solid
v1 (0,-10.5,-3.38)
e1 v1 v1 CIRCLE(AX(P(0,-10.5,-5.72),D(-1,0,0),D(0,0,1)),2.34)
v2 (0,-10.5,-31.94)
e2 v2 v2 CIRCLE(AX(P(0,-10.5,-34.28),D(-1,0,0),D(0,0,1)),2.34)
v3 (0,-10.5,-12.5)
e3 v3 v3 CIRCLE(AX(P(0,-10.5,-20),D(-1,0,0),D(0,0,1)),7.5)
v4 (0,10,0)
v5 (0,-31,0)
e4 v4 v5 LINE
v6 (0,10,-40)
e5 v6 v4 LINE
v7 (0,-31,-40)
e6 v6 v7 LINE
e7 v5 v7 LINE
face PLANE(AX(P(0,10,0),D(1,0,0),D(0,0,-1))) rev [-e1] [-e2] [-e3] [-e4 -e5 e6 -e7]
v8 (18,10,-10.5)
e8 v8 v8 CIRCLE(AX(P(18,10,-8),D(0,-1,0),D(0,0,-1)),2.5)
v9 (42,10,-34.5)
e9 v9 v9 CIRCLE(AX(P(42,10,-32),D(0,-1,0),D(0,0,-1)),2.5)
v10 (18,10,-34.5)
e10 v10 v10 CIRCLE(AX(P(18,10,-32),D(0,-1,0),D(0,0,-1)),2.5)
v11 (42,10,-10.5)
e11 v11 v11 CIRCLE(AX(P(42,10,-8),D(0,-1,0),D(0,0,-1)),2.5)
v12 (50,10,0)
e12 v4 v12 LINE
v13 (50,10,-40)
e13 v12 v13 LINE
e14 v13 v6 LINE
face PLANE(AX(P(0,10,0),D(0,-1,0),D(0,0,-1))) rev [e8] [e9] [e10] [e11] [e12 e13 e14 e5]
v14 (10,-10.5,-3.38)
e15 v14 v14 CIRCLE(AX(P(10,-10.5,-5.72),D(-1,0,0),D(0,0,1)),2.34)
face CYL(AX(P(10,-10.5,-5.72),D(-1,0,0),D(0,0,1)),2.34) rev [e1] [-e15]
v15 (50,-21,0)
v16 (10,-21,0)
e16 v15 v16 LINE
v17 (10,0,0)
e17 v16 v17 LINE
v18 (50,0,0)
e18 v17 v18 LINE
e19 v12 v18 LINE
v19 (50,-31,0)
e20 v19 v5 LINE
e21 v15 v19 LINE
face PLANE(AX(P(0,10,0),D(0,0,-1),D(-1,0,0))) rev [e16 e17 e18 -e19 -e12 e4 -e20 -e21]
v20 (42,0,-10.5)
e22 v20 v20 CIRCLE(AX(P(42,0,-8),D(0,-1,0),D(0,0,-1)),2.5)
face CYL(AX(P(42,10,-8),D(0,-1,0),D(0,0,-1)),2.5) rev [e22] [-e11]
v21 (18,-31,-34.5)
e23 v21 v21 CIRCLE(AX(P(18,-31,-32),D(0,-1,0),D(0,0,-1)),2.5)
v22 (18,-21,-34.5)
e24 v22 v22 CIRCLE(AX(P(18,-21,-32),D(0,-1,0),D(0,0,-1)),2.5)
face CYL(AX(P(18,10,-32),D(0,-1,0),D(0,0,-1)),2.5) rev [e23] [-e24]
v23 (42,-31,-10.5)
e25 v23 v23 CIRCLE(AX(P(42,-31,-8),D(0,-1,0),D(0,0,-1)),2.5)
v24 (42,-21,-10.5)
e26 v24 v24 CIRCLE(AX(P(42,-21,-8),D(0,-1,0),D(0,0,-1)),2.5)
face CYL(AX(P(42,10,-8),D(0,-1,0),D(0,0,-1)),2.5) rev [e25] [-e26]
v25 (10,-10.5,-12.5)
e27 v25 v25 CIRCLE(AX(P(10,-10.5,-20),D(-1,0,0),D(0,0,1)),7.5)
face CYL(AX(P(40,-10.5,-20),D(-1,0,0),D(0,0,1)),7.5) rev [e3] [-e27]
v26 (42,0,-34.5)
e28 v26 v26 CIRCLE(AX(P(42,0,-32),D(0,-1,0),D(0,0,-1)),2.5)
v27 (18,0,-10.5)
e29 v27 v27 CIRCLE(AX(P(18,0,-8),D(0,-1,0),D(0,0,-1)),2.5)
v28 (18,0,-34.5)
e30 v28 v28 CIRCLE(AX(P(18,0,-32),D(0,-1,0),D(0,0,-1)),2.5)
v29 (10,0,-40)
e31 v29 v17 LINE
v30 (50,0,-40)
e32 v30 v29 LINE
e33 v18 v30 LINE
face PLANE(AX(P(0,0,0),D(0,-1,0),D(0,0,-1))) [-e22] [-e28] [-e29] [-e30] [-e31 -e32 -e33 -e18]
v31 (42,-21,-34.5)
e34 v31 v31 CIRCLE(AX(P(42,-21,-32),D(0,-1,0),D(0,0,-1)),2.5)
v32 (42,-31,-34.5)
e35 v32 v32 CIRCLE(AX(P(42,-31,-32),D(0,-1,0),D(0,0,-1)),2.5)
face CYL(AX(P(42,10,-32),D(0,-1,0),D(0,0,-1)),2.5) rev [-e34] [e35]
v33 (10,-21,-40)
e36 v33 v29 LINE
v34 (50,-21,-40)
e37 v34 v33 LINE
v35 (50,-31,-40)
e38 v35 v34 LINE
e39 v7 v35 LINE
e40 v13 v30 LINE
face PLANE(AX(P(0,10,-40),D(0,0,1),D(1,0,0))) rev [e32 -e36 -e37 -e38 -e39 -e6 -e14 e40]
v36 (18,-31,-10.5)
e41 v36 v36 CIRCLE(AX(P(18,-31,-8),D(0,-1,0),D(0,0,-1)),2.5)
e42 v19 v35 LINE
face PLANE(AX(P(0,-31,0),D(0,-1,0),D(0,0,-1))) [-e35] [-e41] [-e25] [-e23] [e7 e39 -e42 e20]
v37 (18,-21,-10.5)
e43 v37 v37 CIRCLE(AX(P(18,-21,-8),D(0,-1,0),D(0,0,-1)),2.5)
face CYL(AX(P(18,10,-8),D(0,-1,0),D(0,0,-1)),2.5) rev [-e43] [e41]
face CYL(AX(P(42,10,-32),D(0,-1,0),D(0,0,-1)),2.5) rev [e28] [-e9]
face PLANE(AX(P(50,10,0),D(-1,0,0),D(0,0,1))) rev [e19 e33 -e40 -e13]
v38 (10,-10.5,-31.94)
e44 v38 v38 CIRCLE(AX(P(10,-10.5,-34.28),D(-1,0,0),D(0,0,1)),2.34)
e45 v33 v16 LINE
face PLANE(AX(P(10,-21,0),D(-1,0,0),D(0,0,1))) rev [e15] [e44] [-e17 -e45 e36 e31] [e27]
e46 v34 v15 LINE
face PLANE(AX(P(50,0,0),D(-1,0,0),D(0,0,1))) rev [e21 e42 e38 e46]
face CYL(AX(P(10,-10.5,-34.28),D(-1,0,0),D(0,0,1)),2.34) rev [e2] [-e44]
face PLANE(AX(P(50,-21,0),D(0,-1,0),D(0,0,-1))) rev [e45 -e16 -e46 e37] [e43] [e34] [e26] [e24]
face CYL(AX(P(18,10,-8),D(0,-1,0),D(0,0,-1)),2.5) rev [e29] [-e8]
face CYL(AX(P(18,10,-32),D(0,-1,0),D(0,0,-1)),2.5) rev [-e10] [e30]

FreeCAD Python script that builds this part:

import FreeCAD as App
import Part
import Sketcher
from FreeCAD import Vector
Q = App.Units.Quantity

doc = App.newDocument("Part")
body = doc.addObject("PartDesign::Body", "Body")

# Sketch on XZ plane
sketch1 = body.newObject("Sketcher::SketchObject", "Sketch")
sketch1.AttachmentSupport = (doc.getObject("XZ_Plane"), [""])
sketch1.MapMode = "FlatFace"
sketch1.addGeometry([
    Part.LineSegment(Vector(0, -40, 0), Vector(0, 0, 0)),
    Part.LineSegment(Vector(0, 0, 0), Vector(50, 0, 0)),
    Part.LineSegment(Vector(50, 0, 0), Vector(50, -40, 0)),
    Part.LineSegment(Vector(50, -40, 0), Vector(0, -40, 0)),
], False)
sketch1.addConstraint([
    Sketcher.Constraint("Coincident", 0, 2, 1, 1),
    Sketcher.Constraint("Coincident", 1, 2, 2, 1),
    Sketcher.Constraint("Coincident", 2, 2, 3, 1),
    Sketcher.Constraint("Coincident", 3, 2, 0, 1),
    Sketcher.Constraint("Vertical", 0),
    Sketcher.Constraint("Horizontal", 1),
    Sketcher.Constraint("Vertical", 2),
    Sketcher.Constraint("Horizontal", 3),
    Sketcher.Constraint("Coincident", 0, 2, -1, 1),
    Sketcher.Constraint("DistanceX", 1, 1, 1, 2, Q("50 mm")),
    Sketcher.Constraint("DistanceY", 0, 1, 0, 2, Q("40 mm")),
])
pad1 = body.newObject("PartDesign::Pad", "Pad")
pad1.Profile = sketch1
pad1.Length = 10
pad1.Reversed = True

# Sketch on XZ plane
sketch2 = body.newObject("Sketcher::SketchObject", "Sketch001")
sketch2.AttachmentSupport = (doc.getObject("XZ_Plane"), [""])
sketch2.MapMode = "FlatFace"
sketch2.addGeometry([
    Part.LineSegment(Vector(0, 0, 0), Vector(0, -40, 0)),
    Part.LineSegment(Vector(0, -40, 0), Vector(10, -40, 0)),
    Part.LineSegment(Vector(10, -40, 0), Vector(10, 0, 0)),
    Part.LineSegment(Vector(10, 0, 0), Vector(0, 0, 0)),
], False)
sketch2.addConstraint([
    Sketcher.Constraint("Coincident", 0, 2, 1, 1),
    Sketcher.Constraint("Coincident", 1, 2, 2, 1),
    Sketcher.Constraint("Coincident", 2, 2, 3, 1),
    Sketcher.Constraint("Coincident", 3, 2, 0, 1),
    Sketcher.Constraint("Vertical", 0),
    Sketcher.Constraint("Horizontal", 1),
    Sketcher.Constraint("Vertical", 2),
    Sketcher.Constraint("Horizontal", 3),
    Sketcher.Constraint("Coincident", 3, 2, -1, 1),
    Sketcher.Constraint("DistanceX", 1, 1, 1, 2, Q("10 mm")),
    Sketcher.Constraint("DistanceY", 0, 2, 0, 1, Q("40 mm")),
])
pad2 = body.newObject("PartDesign::Pad", "Pad001")
pad2.Profile = sketch2
pad2.Length = 21

# Sketch on XZ plane
sketch3 = body.newObject("Sketcher::SketchObject", "Sketch002")
sketch3.AttachmentSupport = (doc.getObject("XZ_Plane"), [""])
sketch3.MapMode = "FlatFace"
sketch3.AttachmentOffset = App.Placement(Vector(0, 0, 21), App.Rotation())
sketch3.addGeometry([
    Part.LineSegment(Vector(0, 0, 0), Vector(0, -40, 0)),
    Part.LineSegment(Vector(0, -40, 0), Vector(10, -40, 0)),
    Part.LineSegment(Vector(10, -40, 0), Vector(10, 0, 0)),
    Part.LineSegment(Vector(10, 0, 0), Vector(0, 0, 0)),
], False)
sketch3.addConstraint([
    Sketcher.Constraint("Coincident", 0, 2, 1, 1),
    Sketcher.Constraint("Coincident", 1, 2, 2, 1),
    Sketcher.Constraint("Coincident", 2, 2, 3, 1),
    Sketcher.Constraint("Coincident", 3, 2, 0, 1),
    Sketcher.Constraint("Vertical", 0),
    Sketcher.Constraint("Horizontal", 1),
    Sketcher.Constraint("Vertical", 2),
    Sketcher.Constraint("Horizontal", 3),
    Sketcher.Constraint("Coincident", 3, 2, -1, 1),
    Sketcher.Constraint("DistanceX", 1, 1, 1, 2, Q("10 mm")),
    Sketcher.Constraint("DistanceY", 0, 2, 0, 1, Q("40 mm")),
])
pad3 = body.newObject("PartDesign::Pad", "Pad002")
pad3.Profile = sketch3
pad3.Length = 10

# Sketch on YZ plane
sketch4 = body.newObject("Sketcher::SketchObject", "Sketch003")
sketch4.AttachmentSupport = (doc.getObject("YZ_Plane"), [""])
sketch4.MapMode = "FlatFace"
sketch4.AttachmentOffset = App.Placement(Vector(0, 0, 10), App.Rotation())
sketch4.addGeometry([
    Part.LineSegment(Vector(-21, 0, 0), Vector(-31, 0, 0)),
    Part.LineSegment(Vector(-31, 0, 0), Vector(-31, -40, 0)),
    Part.LineSegment(Vector(-31, -40, 0), Vector(-21, -40, 0)),
    Part.LineSegment(Vector(-21, -40, 0), Vector(-21, 0, 0)),
], False)
sketch4.addConstraint([
    Sketcher.Constraint("Coincident", 0, 2, 1, 1),
    Sketcher.Constraint("Coincident", 1, 2, 2, 1),
    Sketcher.Constraint("Coincident", 2, 2, 3, 1),
    Sketcher.Constraint("Coincident", 3, 2, 0, 1),
    Sketcher.Constraint("Horizontal", 0),
    Sketcher.Constraint("Vertical", 1),
    Sketcher.Constraint("Horizontal", 2),
    Sketcher.Constraint("Vertical", 3),
    Sketcher.Constraint("PointOnObject", 0, 2, -1),
    Sketcher.Constraint("DistanceX", 0, 2, 0, 1, Q("10 mm")),
    Sketcher.Constraint("DistanceY", 1, 2, 1, 1, Q("40 mm")),
    Sketcher.Constraint("DistanceX", 0, 2, -1, 1, Q("31 mm")),
])
pad4 = body.newObject("PartDesign::Pad", "Pad003")
pad4.Profile = sketch4
pad4.Length = 40

# Sketch on YZ plane
sketch5 = body.newObject("Sketcher::SketchObject", "Sketch004")
sketch5.AttachmentSupport = (doc.getObject("YZ_Plane"), [""])
sketch5.MapMode = "FlatFace"
sketch5.addGeometry([
    Part.Circle(Vector(-10.5, -20, 0), Vector(0, 0, 1), 7.5),
    Part.Circle(Vector(-10.5, -34.3, 0), Vector(0, 0, 1), 2.5),
    Part.Circle(Vector(-10.5, -5.7, 0), Vector(0, 0, 1), 2.5),
], False)
sketch5.addConstraint([
    Sketcher.Constraint("Equal", 1, 2),
    Sketcher.Constraint("Vertical", 0, 3, 1, 3),
    Sketcher.Constraint("Vertical", 1, 3, 2, 3),
    Sketcher.Constraint("Diameter", 0, Q("15 mm")),
    Sketcher.Constraint("Diameter", 1, Q("5 mm")),
    Sketcher.Constraint("DistanceY", 0, 3, -1, 1, Q("20 mm")),
    Sketcher.Constraint("DistanceX", 0, 3, -1, 1, Q("10.5 mm")),
    Sketcher.Constraint("DistanceY", 1, 3, -1, 1, Q("34.28 mm")),
    Sketcher.Constraint("DistanceY", 2, 3, -1, 1, Q("5.72 mm")),
])
pocket1 = body.newObject("PartDesign::Pocket", "Pocket")
pocket1.Profile = sketch5
pocket1.Length = 40
pocket1.Reversed = True

# Sketch on XZ plane
sketch6 = body.newObject("Sketcher::SketchObject", "Sketch005")
sketch6.AttachmentSupport = (doc.getObject("XZ_Plane"), [""])
sketch6.MapMode = "FlatFace"
sketch6.AttachmentOffset = App.Placement(Vector(0, 0, 31), App.Rotation())
sketch6.addGeometry([
    Part.Circle(Vector(18, -8, 0), Vector(0, 0, 1), 2.5),
    Part.Circle(Vector(42, -8, 0), Vector(0, 0, 1), 2.5),
    Part.Circle(Vector(18, -32, 0), Vector(0, 0, 1), 2.5),
    Part.Circle(Vector(42, -32, 0), Vector(0, 0, 1), 2.5),
], False)
sketch6.addConstraint([
    Sketcher.Constraint("Equal", 0, 1),
    Sketcher.Constraint("Equal", 1, 2),
    Sketcher.Constraint("Equal", 2, 3),
    Sketcher.Constraint("Horizontal", 0, 3, 1, 3),
    Sketcher.Constraint("Horizontal", 2, 3, 3, 3),
    Sketcher.Constraint("Vertical", 0, 3, 2, 3),
    Sketcher.Constraint("Vertical", 1, 3, 3, 3),
    Sketcher.Constraint("Diameter", 0, Q("5 mm")),
    Sketcher.Constraint("DistanceX", -1, 1, 0, 3, Q("18 mm")),
    Sketcher.Constraint("DistanceY", 0, 3, -1, 1, Q("8 mm")),
    Sketcher.Constraint("DistanceX", -1, 1, 1, 3, Q("42 mm")),
    Sketcher.Constraint("DistanceY", 2, 3, -1, 1, Q("32 mm")),
])
pocket2 = body.newObject("PartDesign::Pocket", "Pocket001")
pocket2.Profile = sketch6
pocket2.Type = "ThroughAll"

# Sketch on YZ plane
sketch7 = body.newObject("Sketcher::SketchObject", "Sketch006")
sketch7.AttachmentSupport = (doc.getObject("YZ_Plane"), [""])
sketch7.MapMode = "FlatFace"
sketch7.addGeometry([
    Part.Circle(Vector(-10.5, -34.3, 0), Vector(0, 0, 1), 2.5),
    Part.Circle(Vector(-10.5, -34.3, 0), Vector(0, 0, 1), 2.3),
    Part.Circle(Vector(-10.5, -5.7, 0), Vector(0, 0, 1), 2.5),
    Part.Circle(Vector(-10.5, -5.7, 0), Vector(0, 0, 1), 2.3),
], False)
sketch7.addConstraint([
    Sketcher.Constraint("Coincident", 1, 3, 0, 3),
    Sketcher.Constraint("Coincident", 3, 3, 2, 3),
    Sketcher.Constraint("Equal", 0, 2),
    Sketcher.Constraint("Equal", 1, 3),
    Sketcher.Constraint("Vertical", 1, 3, 2, 3),
    Sketcher.Constraint("Diameter", 0, Q("5 mm")),
    Sketcher.Constraint("Diameter", 1, Q("4.68 mm")),
    Sketcher.Constraint("DistanceX", 0, 3, -1, 1, Q("10.5 mm")),
    Sketcher.Constraint("DistanceY", 0, 3, -1, 1, Q("34.28 mm")),
    Sketcher.Constraint("DistanceY", 2, 3, -1, 1, Q("5.72 mm")),
])
pad5 = body.newObject("PartDesign::Pad", "Pad004")
pad5.Profile = sketch7
pad5.Length = 10

doc.recompute()
